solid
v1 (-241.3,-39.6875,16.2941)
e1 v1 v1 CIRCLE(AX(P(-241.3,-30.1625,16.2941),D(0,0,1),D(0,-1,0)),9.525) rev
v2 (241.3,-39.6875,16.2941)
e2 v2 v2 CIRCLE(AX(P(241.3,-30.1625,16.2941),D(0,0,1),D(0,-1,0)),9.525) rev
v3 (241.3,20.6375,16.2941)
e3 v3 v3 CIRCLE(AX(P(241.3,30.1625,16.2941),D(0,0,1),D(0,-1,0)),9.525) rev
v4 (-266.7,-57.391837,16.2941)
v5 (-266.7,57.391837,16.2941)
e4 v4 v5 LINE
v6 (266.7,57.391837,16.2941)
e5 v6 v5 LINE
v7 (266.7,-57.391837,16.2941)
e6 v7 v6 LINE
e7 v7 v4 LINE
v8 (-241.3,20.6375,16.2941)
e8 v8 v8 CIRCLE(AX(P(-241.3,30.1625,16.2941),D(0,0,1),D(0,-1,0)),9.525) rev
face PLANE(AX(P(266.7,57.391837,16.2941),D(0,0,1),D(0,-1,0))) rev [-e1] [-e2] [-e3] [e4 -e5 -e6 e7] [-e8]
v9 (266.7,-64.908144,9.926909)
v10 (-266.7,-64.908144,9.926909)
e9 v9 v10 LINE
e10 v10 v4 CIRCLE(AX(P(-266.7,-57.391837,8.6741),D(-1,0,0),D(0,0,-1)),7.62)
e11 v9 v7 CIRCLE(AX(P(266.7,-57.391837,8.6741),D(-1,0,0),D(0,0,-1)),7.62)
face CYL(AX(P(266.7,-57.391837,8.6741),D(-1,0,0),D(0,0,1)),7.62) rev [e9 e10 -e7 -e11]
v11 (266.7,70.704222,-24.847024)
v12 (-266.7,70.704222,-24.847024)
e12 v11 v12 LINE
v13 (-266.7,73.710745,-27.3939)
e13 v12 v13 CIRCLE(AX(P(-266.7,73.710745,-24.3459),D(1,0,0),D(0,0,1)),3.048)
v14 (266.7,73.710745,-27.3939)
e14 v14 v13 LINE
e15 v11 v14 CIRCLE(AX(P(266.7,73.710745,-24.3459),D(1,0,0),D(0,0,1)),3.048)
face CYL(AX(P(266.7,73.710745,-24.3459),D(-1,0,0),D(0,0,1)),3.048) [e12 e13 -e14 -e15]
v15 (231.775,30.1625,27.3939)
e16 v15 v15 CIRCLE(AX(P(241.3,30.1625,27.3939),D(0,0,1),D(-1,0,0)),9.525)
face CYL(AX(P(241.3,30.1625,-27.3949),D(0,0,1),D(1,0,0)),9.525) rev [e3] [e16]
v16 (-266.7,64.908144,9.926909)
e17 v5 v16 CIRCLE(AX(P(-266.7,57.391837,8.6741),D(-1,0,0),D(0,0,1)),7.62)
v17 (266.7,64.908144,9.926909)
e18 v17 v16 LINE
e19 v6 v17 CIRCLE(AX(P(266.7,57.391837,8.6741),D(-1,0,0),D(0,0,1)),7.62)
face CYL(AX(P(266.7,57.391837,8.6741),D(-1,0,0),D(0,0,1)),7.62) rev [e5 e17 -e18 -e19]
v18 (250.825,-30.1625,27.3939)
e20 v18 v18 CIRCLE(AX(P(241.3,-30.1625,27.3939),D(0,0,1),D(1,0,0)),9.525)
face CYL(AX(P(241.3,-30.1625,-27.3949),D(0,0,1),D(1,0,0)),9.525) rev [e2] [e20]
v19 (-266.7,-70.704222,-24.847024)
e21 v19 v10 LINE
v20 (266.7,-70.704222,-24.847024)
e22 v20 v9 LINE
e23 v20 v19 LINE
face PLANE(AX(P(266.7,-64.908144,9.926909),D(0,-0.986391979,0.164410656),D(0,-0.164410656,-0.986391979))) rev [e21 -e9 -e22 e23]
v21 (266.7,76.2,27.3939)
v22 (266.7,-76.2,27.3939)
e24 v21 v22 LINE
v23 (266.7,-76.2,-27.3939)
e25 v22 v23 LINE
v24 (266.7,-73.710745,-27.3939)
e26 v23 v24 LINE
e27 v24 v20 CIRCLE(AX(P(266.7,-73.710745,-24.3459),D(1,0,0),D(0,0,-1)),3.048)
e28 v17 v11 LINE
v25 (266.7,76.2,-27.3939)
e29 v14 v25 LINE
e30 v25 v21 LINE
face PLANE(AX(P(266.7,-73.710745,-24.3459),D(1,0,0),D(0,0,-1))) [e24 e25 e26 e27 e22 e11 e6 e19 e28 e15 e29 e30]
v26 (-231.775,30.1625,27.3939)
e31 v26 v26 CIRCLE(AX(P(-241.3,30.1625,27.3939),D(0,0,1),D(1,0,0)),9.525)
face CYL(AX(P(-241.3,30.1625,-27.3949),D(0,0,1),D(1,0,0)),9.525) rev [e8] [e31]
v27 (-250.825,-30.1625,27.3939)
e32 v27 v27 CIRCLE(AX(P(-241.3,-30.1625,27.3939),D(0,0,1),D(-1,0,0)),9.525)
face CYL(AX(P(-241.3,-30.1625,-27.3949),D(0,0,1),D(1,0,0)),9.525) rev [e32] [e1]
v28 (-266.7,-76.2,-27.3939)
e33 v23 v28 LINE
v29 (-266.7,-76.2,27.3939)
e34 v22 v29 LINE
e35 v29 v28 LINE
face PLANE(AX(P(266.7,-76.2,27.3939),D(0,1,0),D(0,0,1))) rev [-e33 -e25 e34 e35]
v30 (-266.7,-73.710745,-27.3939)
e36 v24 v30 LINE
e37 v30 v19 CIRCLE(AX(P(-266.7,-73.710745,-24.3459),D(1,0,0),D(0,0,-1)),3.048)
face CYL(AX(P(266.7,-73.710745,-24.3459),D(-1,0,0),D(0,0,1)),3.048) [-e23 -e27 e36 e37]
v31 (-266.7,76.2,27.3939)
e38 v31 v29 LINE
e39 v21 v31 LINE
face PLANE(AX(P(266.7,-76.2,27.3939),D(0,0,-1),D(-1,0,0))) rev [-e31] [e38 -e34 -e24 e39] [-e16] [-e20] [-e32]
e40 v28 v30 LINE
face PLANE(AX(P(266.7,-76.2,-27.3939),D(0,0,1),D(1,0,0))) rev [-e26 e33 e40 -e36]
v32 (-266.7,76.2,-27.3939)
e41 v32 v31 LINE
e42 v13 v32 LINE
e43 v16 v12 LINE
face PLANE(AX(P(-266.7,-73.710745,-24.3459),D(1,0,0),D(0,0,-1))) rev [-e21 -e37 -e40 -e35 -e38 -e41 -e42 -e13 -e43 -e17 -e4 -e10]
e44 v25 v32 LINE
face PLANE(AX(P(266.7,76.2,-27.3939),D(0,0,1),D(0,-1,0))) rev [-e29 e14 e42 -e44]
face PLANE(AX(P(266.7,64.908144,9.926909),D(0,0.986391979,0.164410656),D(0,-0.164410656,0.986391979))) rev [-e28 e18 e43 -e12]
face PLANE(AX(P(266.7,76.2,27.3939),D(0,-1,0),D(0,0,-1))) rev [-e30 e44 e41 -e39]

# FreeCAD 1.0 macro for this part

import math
import FreeCAD as App
import Part
import Sketcher
from FreeCAD import Vector
Q = App.Units.Quantity

doc = App.newDocument("Part")
body = doc.addObject("PartDesign::Body", "Body")

sketch1 = body.newObject("Sketcher::SketchObject", "Sketch")
sketch1.AttachmentSupport = (doc.getObject("YZ_Plane"), [""])
sketch1.MapMode = "FlatFace"
sketch1.addGeometry([
    Part.LineSegment(Vector(76.2, 27.3939, 0), Vector(-76.2, 27.3939, 0)),
    Part.LineSegment(Vector(-76.2, 27.3939, 0), Vector(-76.2, -27.3939, 0)),
    Part.LineSegment(Vector(-76.2, -27.3939, 0), Vector(-73.710745, -27.3939, 0)),
    Part.ArcOfCircle(Part.Circle(Vector(-73.710745, -24.3459, 0), Vector(0, 0, 1), 3.048), math.radians(-90), math.radians(-9.463)),
    Part.LineSegment(Vector(-70.704222, -24.847024, 0), Vector(-64.908144, 9.926909, 0)),
    Part.ArcOfCircle(Part.Circle(Vector(-57.391837, 8.6741, 0), Vector(0, 0, 1), 7.62), math.radians(90), math.radians(170.537)),
    Part.LineSegment(Vector(-57.391837, 16.2941, 0), Vector(57.391837, 16.2941, 0)),
    Part.ArcOfCircle(Part.Circle(Vector(57.391837, 8.6741, 0), Vector(0, 0, 1), 7.62), math.radians(9.463), math.radians(90)),
    Part.LineSegment(Vector(64.908144, 9.926909, 0), Vector(70.704222, -24.847024, 0)),
    Part.ArcOfCircle(Part.Circle(Vector(73.710745, -24.3459, 0), Vector(0, 0, 1), 3.048), math.radians(-170.537), math.radians(-90)),
    Part.LineSegment(Vector(73.710745, -27.3939, 0), Vector(76.2, -27.3939, 0)),
    Part.LineSegment(Vector(76.2, -27.3939, 0), Vector(76.2, 27.3939, 0)),
], False)
sketch1.addConstraint([
    Sketcher.Constraint("Coincident", 0, 2, 1, 1),
    Sketcher.Constraint("Coincident", 1, 2, 2, 1),
    Sketcher.Constraint("Tangent", 2, 2, 3, 1),
    Sketcher.Constraint("Tangent", 3, 2, 4, 1),
    Sketcher.Constraint("Tangent", 4, 2, 5, 2),
    Sketcher.Constraint("Tangent", 5, 1, 6, 1),
    Sketcher.Constraint("Tangent", 6, 2, 7, 2),
    Sketcher.Constraint("Tangent", 7, 1, 8, 1),
    Sketcher.Constraint("Tangent", 8, 2, 9, 1),
    Sketcher.Constraint("Tangent", 9, 2, 10, 1),
    Sketcher.Constraint("Coincident", 10, 2, 11, 1),
    Sketcher.Constraint("Coincident", 11, 2, 0, 1),
    Sketcher.Constraint("Horizontal", 0),
    Sketcher.Constraint("Vertical", 1),
    Sketcher.Constraint("Horizontal", 2),
    Sketcher.Constraint("Horizontal", 6),
    Sketcher.Constraint("Horizontal", 10),
    Sketcher.Constraint("Vertical", 11),
    Sketcher.Constraint("Equal", 5, 7),
    Sketcher.Constraint("Equal", 3, 9),
    Sketcher.Constraint("Symmetric", 0, 2, 10, 2, -1, 1),
    Sketcher.Constraint("Symmetric", 3, 3, 9, 3, -2),
    Sketcher.Constraint("Horizontal", 4, 2, 7, 1),
    Sketcher.Constraint("Radius", 5, Q("0.3 in")),
    Sketcher.Constraint("DistanceX", 0, 2, 0, 1, Q("6 in")),
    Sketcher.Constraint("Radius", 3, Q("0.12 in")),
    Sketcher.Constraint("DistanceY", 3, 3, 5, 3, Q("1.3 in")),
    Sketcher.Constraint("DistanceY", 1, 2, 1, 1, Q("2.157 in")),
    Sketcher.Constraint("DistanceX", 3, 3, 4, 2, 8.802601),
    Sketcher.Constraint("DistanceX", 2, 1, 2, 2, 2.489255),
])
pad1 = body.newObject("PartDesign::Pad", "Pad")
pad1.Profile = sketch1
pad1.Length = Q("21 in")
pad1.Midplane = True

sketch2 = body.newObject("Sketcher::SketchObject", "Sketch001")
sketch2.AttachmentSupport = (doc.getObject("XY_Plane"), [""])
sketch2.MapMode = "FlatFace"
sketch2.AttachmentOffset = App.Placement(Vector(0, 0, 1.0785 * 25.4), App.Rotation())
sketch2.addGeometry(Part.Circle(Vector(-241.3, 30.1625, 0), Vector(0, 0, 1), 9.525), False)
sketch2.addConstraint([
    Sketcher.Constraint("Diameter", 0, Q("0.75 in")),
    Sketcher.Constraint("DistanceX", 0, 3, -1, 1, Q("9.5 in")),
    Sketcher.Constraint("DistanceY", -1, 1, 0, 3, Q("1.1875 in")),
])
pocket1 = body.newObject("PartDesign::Pocket", "Pocket")
pocket1.Profile = sketch2
pocket1.Type = "UpToFirst"

sketch3 = body.newObject("Sketcher::SketchObject", "Sketch002")
sketch3.AttachmentSupport = (doc.getObject("XY_Plane"), [""])
sketch3.MapMode = "FlatFace"
sketch3.AttachmentOffset = App.Placement(Vector(0, 0, 1.0785 * 25.4), App.Rotation())
sketch3.addGeometry(Part.Circle(Vector(-241.3, -30.1625, 0), Vector(0, 0, 1), 9.525), False)
sketch3.addConstraint([
    Sketcher.Constraint("Diameter", 0, Q("0.75 in")),
    Sketcher.Constraint("DistanceX", 0, 3, -1, 1, Q("9.5 in")),
    Sketcher.Constraint("DistanceY", 0, 3, -1, 1, Q("1.1875 in")),
])
pocket2 = body.newObject("PartDesign::Pocket", "Pocket001")
pocket2.Profile = sketch3
pocket2.Type = "UpToFirst"

sketch4 = body.newObject("Sketcher::SketchObject", "Sketch003")
sketch4.AttachmentSupport = (doc.getObject("XY_Plane"), [""])
sketch4.MapMode = "FlatFace"
sketch4.AttachmentOffset = App.Placement(Vector(0, 0, 1.0785 * 25.4), App.Rotation())
sketch4.addGeometry(Part.Circle(Vector(241.3, -30.1625, 0), Vector(0, 0, 1), 9.525), False)
sketch4.addConstraint([
    Sketcher.Constraint("Diameter", 0, Q("0.75 in")),
    Sketcher.Constraint("DistanceX", -1, 1, 0, 3, Q("9.5 in")),
    Sketcher.Constraint("DistanceY", 0, 3, -1, 1, Q("1.1875 in")),
])
pocket3 = body.newObject("PartDesign::Pocket", "Pocket002")
pocket3.Profile = sketch4
pocket3.Type = "UpToFirst"

sketch5 = body.newObject("Sketcher::SketchObject", "Sketch004")
sketch5.AttachmentSupport = (doc.getObject("XY_Plane"), [""])
sketch5.MapMode = "FlatFace"
sketch5.AttachmentOffset = App.Placement(Vector(0, 0, 1.0785 * 25.4), App.Rotation())
sketch5.addGeometry(Part.Circle(Vector(241.3, 30.1625, 0), Vector(0, 0, 1), 9.525), False)
sketch5.addConstraint([
    Sketcher.Constraint("Diameter", 0, Q("0.75 in")),
    Sketcher.Constraint("DistanceX", -1, 1, 0, 3, Q("9.5 in")),
    Sketcher.Constraint("DistanceY", -1, 1, 0, 3, Q("1.1875 in")),
])
pocket4 = body.newObject("PartDesign::Pocket", "Pocket003")
pocket4.Profile = sketch5
pocket4.Type = "UpToFirst"

doc.recompute()
